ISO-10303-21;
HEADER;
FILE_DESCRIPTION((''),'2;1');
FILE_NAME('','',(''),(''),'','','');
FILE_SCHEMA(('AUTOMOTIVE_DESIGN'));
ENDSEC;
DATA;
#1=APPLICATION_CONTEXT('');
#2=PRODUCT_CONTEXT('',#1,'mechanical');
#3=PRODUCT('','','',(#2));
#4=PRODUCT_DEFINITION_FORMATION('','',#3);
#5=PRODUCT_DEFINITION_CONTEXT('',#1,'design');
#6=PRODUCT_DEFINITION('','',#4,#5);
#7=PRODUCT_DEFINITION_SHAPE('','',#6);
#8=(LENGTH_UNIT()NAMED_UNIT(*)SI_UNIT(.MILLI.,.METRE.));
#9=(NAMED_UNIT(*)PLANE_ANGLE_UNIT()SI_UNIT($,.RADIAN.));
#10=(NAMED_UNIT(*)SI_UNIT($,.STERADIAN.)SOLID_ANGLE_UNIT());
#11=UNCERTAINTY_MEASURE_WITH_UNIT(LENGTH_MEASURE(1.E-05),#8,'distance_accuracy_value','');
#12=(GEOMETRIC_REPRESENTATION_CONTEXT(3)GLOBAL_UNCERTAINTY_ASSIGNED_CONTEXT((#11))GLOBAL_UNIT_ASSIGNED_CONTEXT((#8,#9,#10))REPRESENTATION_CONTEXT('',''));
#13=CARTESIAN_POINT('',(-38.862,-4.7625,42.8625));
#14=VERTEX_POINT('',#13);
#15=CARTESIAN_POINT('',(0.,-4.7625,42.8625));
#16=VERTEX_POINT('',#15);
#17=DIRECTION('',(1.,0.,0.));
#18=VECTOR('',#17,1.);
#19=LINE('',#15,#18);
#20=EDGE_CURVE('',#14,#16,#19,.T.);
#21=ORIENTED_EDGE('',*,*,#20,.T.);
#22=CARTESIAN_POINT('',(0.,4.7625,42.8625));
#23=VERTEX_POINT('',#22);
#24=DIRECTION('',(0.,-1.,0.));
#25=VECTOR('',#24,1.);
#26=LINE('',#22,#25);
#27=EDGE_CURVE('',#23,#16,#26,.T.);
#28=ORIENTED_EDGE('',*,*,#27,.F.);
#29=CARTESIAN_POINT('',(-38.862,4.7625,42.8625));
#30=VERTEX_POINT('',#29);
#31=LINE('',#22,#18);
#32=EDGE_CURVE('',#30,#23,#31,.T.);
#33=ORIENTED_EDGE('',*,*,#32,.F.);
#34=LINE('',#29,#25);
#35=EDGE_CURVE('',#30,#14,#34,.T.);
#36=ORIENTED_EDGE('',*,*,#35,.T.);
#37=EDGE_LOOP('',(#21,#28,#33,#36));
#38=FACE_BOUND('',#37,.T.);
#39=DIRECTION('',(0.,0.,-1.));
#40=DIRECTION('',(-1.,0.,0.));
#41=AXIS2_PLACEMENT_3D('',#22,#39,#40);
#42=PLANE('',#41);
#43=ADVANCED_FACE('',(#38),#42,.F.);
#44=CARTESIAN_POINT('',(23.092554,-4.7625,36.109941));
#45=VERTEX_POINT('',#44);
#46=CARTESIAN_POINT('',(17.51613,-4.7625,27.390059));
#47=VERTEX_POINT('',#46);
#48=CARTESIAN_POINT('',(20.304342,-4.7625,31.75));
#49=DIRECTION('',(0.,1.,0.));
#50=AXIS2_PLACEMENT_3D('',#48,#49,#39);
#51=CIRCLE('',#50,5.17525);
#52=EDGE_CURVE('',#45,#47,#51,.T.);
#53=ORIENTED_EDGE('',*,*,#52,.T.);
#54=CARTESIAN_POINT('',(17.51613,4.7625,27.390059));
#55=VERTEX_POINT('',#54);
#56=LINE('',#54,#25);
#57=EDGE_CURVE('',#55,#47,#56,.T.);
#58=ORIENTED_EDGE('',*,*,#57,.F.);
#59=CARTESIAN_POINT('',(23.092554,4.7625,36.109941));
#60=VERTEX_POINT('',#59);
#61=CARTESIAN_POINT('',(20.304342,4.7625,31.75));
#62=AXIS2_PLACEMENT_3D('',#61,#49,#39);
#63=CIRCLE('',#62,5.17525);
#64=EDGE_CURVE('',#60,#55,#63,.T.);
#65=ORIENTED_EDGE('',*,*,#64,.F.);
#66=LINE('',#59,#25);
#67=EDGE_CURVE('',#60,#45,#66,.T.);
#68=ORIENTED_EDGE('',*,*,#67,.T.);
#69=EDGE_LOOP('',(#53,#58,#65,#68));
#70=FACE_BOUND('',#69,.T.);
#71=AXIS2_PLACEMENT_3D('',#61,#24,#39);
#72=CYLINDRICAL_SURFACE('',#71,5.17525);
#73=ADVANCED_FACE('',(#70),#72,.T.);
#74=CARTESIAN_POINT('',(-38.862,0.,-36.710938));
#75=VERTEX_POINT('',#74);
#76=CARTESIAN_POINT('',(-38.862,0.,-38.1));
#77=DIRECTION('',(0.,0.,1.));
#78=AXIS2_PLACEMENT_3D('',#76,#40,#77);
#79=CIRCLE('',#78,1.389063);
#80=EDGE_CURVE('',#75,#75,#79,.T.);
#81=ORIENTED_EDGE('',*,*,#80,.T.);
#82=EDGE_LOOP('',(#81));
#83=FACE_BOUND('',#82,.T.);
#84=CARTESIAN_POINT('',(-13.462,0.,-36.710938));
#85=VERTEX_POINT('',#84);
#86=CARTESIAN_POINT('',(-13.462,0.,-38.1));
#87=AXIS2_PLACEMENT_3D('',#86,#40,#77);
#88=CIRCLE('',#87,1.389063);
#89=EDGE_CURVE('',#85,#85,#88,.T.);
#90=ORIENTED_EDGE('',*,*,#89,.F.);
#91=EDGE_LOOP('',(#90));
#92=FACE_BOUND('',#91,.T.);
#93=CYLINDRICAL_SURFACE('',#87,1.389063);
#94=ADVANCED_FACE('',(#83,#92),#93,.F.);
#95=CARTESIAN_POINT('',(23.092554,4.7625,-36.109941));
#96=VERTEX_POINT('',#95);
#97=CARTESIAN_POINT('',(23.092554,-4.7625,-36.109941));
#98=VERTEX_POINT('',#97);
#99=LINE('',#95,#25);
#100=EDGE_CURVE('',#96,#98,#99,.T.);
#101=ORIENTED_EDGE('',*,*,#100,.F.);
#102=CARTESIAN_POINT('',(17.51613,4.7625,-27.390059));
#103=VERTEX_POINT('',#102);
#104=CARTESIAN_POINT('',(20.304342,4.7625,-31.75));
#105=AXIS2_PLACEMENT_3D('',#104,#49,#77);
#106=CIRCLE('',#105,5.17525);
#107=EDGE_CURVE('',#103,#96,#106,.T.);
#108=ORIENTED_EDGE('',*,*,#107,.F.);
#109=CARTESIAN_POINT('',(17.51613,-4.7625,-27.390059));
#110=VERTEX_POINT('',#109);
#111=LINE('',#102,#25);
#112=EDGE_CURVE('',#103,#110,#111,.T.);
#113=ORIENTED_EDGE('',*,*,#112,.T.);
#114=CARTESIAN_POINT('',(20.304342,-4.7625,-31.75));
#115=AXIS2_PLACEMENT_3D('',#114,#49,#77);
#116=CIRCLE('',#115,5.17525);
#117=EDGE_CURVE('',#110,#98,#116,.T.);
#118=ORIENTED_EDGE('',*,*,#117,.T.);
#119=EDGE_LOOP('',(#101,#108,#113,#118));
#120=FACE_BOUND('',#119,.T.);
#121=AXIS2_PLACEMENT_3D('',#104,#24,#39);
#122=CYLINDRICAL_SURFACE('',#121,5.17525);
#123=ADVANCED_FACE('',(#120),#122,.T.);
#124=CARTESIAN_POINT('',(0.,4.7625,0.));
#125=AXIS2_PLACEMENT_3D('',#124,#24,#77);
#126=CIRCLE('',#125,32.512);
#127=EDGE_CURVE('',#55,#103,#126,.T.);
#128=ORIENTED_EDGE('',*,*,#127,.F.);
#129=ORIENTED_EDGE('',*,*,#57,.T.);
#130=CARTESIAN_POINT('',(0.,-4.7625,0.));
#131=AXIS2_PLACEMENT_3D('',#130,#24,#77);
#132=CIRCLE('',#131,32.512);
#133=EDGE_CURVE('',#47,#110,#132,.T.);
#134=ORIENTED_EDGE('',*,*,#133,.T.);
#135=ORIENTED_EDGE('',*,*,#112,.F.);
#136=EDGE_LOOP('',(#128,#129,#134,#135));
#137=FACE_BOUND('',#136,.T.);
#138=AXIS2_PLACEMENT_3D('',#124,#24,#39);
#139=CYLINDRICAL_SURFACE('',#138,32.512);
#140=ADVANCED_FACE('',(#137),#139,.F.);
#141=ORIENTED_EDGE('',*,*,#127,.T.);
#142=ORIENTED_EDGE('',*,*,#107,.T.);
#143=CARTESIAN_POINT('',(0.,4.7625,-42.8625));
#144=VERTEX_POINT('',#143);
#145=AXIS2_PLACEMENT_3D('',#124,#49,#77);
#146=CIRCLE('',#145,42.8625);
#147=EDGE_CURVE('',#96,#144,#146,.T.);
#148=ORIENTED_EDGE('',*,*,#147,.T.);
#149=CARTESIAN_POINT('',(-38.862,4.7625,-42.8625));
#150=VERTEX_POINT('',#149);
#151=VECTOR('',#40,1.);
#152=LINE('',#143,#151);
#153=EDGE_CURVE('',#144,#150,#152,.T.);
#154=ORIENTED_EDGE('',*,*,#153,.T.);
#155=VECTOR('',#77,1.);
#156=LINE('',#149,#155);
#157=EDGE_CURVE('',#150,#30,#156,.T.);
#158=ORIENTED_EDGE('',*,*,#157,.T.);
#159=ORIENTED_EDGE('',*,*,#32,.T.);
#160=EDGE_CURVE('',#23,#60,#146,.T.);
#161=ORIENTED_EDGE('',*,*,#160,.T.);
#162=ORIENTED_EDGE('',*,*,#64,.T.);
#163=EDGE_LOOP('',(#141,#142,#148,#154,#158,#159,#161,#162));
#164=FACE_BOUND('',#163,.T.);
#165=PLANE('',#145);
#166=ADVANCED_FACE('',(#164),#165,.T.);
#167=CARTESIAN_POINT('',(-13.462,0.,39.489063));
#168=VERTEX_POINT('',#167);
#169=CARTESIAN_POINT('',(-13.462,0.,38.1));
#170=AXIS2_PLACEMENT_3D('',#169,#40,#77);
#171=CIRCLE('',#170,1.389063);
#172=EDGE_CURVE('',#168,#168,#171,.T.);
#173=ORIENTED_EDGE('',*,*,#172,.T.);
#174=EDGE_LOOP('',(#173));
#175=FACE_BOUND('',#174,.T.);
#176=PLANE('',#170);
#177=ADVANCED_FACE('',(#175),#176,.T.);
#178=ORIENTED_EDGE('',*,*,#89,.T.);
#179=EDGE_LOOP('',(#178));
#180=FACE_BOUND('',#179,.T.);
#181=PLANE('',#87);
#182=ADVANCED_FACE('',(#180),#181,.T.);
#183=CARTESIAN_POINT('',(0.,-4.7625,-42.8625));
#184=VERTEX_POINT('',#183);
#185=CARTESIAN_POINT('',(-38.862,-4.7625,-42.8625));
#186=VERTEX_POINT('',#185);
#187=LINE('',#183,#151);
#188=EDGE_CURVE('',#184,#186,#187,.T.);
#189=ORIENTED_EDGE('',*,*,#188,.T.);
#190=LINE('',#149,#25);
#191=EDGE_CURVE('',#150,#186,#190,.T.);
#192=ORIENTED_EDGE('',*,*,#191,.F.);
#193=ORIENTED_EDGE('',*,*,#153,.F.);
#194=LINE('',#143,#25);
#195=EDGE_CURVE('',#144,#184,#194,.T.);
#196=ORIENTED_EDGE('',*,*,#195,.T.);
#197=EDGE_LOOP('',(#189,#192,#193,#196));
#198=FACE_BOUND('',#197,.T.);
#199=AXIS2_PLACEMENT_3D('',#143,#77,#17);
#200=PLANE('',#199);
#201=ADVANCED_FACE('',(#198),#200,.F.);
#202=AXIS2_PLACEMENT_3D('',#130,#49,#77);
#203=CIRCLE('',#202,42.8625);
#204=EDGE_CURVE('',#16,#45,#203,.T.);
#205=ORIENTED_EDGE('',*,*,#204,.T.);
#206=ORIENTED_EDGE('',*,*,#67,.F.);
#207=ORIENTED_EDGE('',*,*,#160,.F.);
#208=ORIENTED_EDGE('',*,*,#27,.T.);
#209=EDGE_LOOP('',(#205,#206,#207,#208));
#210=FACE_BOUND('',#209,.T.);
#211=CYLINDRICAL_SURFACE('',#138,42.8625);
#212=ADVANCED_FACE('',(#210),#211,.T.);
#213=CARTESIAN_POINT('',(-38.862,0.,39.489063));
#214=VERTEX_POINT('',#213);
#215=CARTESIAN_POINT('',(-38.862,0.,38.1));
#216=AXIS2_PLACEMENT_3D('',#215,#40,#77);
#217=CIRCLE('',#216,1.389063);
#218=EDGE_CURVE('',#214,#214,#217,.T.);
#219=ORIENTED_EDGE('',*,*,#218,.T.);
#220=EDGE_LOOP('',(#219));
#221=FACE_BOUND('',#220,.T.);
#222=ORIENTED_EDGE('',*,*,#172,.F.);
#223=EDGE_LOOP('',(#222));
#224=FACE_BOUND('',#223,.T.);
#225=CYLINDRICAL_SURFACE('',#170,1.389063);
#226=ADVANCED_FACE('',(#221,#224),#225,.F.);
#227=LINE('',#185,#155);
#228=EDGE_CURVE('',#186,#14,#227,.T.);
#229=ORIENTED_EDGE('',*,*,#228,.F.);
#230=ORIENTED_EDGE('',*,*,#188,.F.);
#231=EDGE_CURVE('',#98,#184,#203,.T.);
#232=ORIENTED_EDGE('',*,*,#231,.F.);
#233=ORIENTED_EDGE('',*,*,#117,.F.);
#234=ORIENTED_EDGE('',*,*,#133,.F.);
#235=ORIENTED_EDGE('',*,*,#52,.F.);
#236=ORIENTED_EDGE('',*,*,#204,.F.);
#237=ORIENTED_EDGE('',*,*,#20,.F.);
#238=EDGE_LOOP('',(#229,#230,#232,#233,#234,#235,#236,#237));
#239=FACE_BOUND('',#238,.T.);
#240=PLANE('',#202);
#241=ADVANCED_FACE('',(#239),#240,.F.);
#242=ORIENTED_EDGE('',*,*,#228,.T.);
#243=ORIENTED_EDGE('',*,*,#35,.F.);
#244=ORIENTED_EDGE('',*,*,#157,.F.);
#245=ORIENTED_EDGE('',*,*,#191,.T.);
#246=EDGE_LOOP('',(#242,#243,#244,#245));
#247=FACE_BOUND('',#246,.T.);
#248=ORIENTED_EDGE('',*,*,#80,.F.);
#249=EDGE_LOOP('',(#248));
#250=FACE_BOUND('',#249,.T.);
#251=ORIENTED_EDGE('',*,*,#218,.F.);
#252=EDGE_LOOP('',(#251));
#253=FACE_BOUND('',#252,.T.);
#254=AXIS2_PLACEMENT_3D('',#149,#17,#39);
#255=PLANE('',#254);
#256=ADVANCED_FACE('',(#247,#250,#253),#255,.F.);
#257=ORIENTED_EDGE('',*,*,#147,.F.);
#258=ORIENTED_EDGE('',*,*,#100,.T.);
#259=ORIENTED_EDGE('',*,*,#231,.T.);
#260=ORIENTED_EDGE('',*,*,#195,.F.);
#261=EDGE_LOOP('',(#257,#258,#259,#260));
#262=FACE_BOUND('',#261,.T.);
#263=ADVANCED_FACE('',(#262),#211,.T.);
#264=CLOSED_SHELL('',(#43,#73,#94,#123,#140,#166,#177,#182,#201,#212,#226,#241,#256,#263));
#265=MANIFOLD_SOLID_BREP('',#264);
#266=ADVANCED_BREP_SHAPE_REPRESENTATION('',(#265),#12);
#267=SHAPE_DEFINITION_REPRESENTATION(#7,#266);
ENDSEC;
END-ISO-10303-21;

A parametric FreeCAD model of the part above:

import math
import FreeCAD as App
import Part
import Sketcher

V = App.Vector
Q = App.Units.Quantity

doc = App.newDocument("Part")
body = doc.addObject("PartDesign::Body", "Body")

# Sketch on XZ plane
sketch1 = doc.addObject("Sketcher::SketchObject", "Sketch")
body.addObject(sketch1)
sketch1.AttachmentSupport = (doc.XZ_Plane, [""])
sketch1.MapMode = "FlatFace"
sketch1.addGeometry(Part.LineSegment(V(-39, -43, 0), V(-39, 43, 0)), False)
sketch1.addGeometry(Part.LineSegment(V(-39, 43, 0), V(0, 43, 0)), False)
sketch1.addGeometry(Part.ArcOfCircle(Part.Circle(V(0, 0, 0), V(0, 0, 1), 43), math.radians(57), math.radians(90)), False)
sketch1.addGeometry(Part.ArcOfCircle(Part.Circle(V(20, 32, 0), V(0, 0, 1), 5), math.radians(-123), math.radians(57)), False)
sketch1.addGeometry(Part.ArcOfCircle(Part.Circle(V(0, 0, 0), V(0, 0, 1), 33), math.radians(57), math.radians(303)), False)
sketch1.addGeometry(Part.ArcOfCircle(Part.Circle(V(20, -32, 0), V(0, 0, 1), 5), math.radians(-57), math.radians(123)), False)
sketch1.addGeometry(Part.ArcOfCircle(Part.Circle(V(0, 0, 0), V(0, 0, 1), 43), math.radians(-90), math.radians(-57)), False)
sketch1.addGeometry(Part.LineSegment(V(0, -43, 0), V(-39, -43, 0)), False)
sketch1.addConstraint(Sketcher.Constraint("Coincident", 0, 2, 1, 1))
sketch1.addConstraint(Sketcher.Constraint("Tangent", 1, 2, 2, 2))
sketch1.addConstraint(Sketcher.Constraint("Tangent", 2, 1, 3, 2))
sketch1.addConstraint(Sketcher.Constraint("Tangent", 3, 1, 4, 1))
sketch1.addConstraint(Sketcher.Constraint("Tangent", 4, 2, 5, 2))
sketch1.addConstraint(Sketcher.Constraint("Tangent", 5, 1, 6, 2))
sketch1.addConstraint(Sketcher.Constraint("Tangent", 6, 1, 7, 1))
sketch1.addConstraint(Sketcher.Constraint("Coincident", 7, 2, 0, 1))
sketch1.addConstraint(Sketcher.Constraint("Vertical", 0))
sketch1.addConstraint(Sketcher.Constraint("Horizontal", 1))
sketch1.addConstraint(Sketcher.Constraint("Horizontal", 7))
sketch1.addConstraint(Sketcher.Constraint("Coincident", 2, 3, -1, 1))
sketch1.addConstraint(Sketcher.Constraint("Coincident", 4, 3, -1, 1))
sketch1.addConstraint(Sketcher.Constraint("Coincident", 6, 3, -1, 1))
sketch1.addConstraint(Sketcher.Constraint("Equal", 3, 5))
sketch1.addConstraint(Sketcher.Constraint("Vertical", 3, 3, 5, 3))
sketch1.addConstraint(Sketcher.Constraint("Radius", 4, Q("1.28 in")))
sketch1.addConstraint(Sketcher.Constraint("Radius", 2, Q("1.6875 in")))
sketch1.addConstraint(Sketcher.Constraint("DistanceX", 1, 1, 1, 2, Q("1.53 in")))
sketch1.addConstraint(Sketcher.Constraint("DistanceY", 5, 3, 3, 3, Q("2.5 in")))
pad1 = doc.addObject("PartDesign::Pad", "Pad")
body.addObject(pad1)
pad1.Profile = sketch1
pad1.Length = Q("0.375 in")
pad1.Midplane = True

# Sketch on YZ plane
sketch2 = doc.addObject("Sketcher::SketchObject", "Sketch001")
body.addObject(sketch2)
sketch2.AttachmentSupport = (doc.YZ_Plane, [""])
sketch2.MapMode = "FlatFace"
sketch2.AttachmentOffset = App.Placement(V(0, 0, -1.53 * 25.4), App.Rotation())
sketch2.addGeometry(Part.Circle(V(0, -38.1, 0), V(0, 0, 1), 1.4), False)
sketch2.addGeometry(Part.Circle(V(0, 38.1, 0), V(0, 0, 1), 1.4), False)
sketch2.addConstraint(Sketcher.Constraint("Equal", 0, 1))
sketch2.addConstraint(Sketcher.Constraint("Symmetric", 0, 3, 1, 3, -1, 1))
sketch2.addConstraint(Sketcher.Constraint("PointOnObject", 0, 3, -2))
sketch2.addConstraint(Sketcher.Constraint("Diameter", 0, Q("0.109375 in")))
sketch2.addConstraint(Sketcher.Constraint("DistanceY", 0, 3, 1, 3, Q("3 in")))
pocket1 = doc.addObject("PartDesign::Pocket", "Pocket")
body.addObject(pocket1)
pocket1.Profile = sketch2
pocket1.Length = Q("1 in")
pocket1.Reversed = True

doc.recompute()
